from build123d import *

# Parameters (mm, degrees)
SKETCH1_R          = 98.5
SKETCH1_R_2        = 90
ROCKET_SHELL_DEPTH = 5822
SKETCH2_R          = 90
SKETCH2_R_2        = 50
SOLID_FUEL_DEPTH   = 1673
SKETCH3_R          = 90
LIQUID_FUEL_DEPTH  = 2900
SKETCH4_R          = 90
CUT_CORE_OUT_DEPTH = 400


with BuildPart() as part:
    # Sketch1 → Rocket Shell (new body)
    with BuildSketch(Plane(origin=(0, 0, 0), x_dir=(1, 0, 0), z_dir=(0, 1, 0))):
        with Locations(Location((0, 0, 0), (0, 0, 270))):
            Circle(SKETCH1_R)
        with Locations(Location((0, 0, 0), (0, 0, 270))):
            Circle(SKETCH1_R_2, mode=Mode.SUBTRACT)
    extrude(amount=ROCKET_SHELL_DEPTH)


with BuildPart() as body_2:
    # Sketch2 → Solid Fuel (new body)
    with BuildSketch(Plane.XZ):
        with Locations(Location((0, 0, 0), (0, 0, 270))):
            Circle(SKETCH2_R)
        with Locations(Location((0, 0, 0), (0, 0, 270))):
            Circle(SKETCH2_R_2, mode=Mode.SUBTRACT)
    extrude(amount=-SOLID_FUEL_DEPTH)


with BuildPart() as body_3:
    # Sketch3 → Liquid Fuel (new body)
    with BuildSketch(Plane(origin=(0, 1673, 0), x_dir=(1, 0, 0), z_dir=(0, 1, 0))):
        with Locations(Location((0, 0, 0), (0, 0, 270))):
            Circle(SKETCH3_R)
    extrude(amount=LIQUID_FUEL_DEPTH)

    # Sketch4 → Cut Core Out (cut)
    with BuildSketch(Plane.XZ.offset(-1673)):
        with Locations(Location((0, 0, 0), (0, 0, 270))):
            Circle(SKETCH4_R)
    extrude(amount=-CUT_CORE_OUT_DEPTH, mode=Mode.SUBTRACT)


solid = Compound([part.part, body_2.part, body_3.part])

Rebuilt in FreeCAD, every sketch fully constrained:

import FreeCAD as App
import Part
import Sketcher
from FreeCAD import Vector

doc = App.newDocument("Part")
body = doc.addObject("PartDesign::Body", "Body")

sketch1 = body.newObject("Sketcher::SketchObject", "Sketch")
sketch1.AttachmentSupport = (doc.getObject("XZ_Plane"), [""])
sketch1.MapMode = "FlatFace"
sketch1.addGeometry([
    Part.Circle(Vector(0, 0, 0), Vector(0, 0, 1), 98),
    Part.Circle(Vector(0, 0, 0), Vector(0, 0, 1), 90),
], False)
sketch1.addConstraint([
    Sketcher.Constraint("Coincident", 0, 3, -1, 1),
    Sketcher.Constraint("Coincident", 1, 3, -1, 1),
    Sketcher.Constraint("Diameter", 0, 197.0),
    Sketcher.Constraint("Diameter", 1, 180.0),
])
pad1 = body.newObject("PartDesign::Pad", "Pad")
pad1.Profile = sketch1
pad1.Length = 5822
pad1.Reversed = True
body2 = doc.addObject("PartDesign::Body", "Body001")

sketch2 = body2.newObject("Sketcher::SketchObject", "Sketch001")
sketch2.AttachmentSupport = (doc.getObject("XZ_Plane001"), [""])
sketch2.MapMode = "FlatFace"
sketch2.addGeometry([
    Part.Circle(Vector(0, 0, 0), Vector(0, 0, 1), 90),
    Part.Circle(Vector(0, 0, 0), Vector(0, 0, 1), 50),
], False)
sketch2.addConstraint([
    Sketcher.Constraint("Coincident", 0, 3, -1, 1),
    Sketcher.Constraint("Coincident", 1, 3, -1, 1),
    Sketcher.Constraint("Diameter", 0, 180.0),
    Sketcher.Constraint("Diameter", 1, 100.0),
])
pad2 = body2.newObject("PartDesign::Pad", "Pad001")
pad2.Profile = sketch2
pad2.Length = 1673
pad2.Reversed = True
body3 = doc.addObject("PartDesign::Body", "Body002")

sketch3 = body3.newObject("Sketcher::SketchObject", "Sketch002")
sketch3.AttachmentSupport = (doc.getObject("XZ_Plane002"), [""])
sketch3.MapMode = "FlatFace"
sketch3.AttachmentOffset = App.Placement(Vector(0, 0, -1673), App.Rotation())
sketch3.addGeometry(Part.Circle(Vector(0, 0, 0), Vector(0, 0, 1), 90), False)
sketch3.addConstraint([
    Sketcher.Constraint("Coincident", 0, 3, -1, 1),
    Sketcher.Constraint("Diameter", 0, 180.0),
])
pad3 = body3.newObject("PartDesign::Pad", "Pad002")
pad3.Profile = sketch3
pad3.Length = 2900
pad3.Reversed = True

sketch4 = body3.newObject("Sketcher::SketchObject", "Sketch003")
sketch4.AttachmentSupport = (doc.getObject("XZ_Plane002"), [""])
sketch4.MapMode = "FlatFace"
sketch4.AttachmentOffset = App.Placement(Vector(0, 0, -1673), App.Rotation())
sketch4.addGeometry(Part.Circle(Vector(0, 0, 0), Vector(0, 0, 1), 90), False)
sketch4.addConstraint([
    Sketcher.Constraint("Coincident", 0, 3, -1, 1),
    Sketcher.Constraint("Diameter", 0, 180.0),
])
pocket1 = body3.newObject("PartDesign::Pocket", "Pocket")
pocket1.Profile = sketch4
pocket1.Length = 400

doc.recompute()
